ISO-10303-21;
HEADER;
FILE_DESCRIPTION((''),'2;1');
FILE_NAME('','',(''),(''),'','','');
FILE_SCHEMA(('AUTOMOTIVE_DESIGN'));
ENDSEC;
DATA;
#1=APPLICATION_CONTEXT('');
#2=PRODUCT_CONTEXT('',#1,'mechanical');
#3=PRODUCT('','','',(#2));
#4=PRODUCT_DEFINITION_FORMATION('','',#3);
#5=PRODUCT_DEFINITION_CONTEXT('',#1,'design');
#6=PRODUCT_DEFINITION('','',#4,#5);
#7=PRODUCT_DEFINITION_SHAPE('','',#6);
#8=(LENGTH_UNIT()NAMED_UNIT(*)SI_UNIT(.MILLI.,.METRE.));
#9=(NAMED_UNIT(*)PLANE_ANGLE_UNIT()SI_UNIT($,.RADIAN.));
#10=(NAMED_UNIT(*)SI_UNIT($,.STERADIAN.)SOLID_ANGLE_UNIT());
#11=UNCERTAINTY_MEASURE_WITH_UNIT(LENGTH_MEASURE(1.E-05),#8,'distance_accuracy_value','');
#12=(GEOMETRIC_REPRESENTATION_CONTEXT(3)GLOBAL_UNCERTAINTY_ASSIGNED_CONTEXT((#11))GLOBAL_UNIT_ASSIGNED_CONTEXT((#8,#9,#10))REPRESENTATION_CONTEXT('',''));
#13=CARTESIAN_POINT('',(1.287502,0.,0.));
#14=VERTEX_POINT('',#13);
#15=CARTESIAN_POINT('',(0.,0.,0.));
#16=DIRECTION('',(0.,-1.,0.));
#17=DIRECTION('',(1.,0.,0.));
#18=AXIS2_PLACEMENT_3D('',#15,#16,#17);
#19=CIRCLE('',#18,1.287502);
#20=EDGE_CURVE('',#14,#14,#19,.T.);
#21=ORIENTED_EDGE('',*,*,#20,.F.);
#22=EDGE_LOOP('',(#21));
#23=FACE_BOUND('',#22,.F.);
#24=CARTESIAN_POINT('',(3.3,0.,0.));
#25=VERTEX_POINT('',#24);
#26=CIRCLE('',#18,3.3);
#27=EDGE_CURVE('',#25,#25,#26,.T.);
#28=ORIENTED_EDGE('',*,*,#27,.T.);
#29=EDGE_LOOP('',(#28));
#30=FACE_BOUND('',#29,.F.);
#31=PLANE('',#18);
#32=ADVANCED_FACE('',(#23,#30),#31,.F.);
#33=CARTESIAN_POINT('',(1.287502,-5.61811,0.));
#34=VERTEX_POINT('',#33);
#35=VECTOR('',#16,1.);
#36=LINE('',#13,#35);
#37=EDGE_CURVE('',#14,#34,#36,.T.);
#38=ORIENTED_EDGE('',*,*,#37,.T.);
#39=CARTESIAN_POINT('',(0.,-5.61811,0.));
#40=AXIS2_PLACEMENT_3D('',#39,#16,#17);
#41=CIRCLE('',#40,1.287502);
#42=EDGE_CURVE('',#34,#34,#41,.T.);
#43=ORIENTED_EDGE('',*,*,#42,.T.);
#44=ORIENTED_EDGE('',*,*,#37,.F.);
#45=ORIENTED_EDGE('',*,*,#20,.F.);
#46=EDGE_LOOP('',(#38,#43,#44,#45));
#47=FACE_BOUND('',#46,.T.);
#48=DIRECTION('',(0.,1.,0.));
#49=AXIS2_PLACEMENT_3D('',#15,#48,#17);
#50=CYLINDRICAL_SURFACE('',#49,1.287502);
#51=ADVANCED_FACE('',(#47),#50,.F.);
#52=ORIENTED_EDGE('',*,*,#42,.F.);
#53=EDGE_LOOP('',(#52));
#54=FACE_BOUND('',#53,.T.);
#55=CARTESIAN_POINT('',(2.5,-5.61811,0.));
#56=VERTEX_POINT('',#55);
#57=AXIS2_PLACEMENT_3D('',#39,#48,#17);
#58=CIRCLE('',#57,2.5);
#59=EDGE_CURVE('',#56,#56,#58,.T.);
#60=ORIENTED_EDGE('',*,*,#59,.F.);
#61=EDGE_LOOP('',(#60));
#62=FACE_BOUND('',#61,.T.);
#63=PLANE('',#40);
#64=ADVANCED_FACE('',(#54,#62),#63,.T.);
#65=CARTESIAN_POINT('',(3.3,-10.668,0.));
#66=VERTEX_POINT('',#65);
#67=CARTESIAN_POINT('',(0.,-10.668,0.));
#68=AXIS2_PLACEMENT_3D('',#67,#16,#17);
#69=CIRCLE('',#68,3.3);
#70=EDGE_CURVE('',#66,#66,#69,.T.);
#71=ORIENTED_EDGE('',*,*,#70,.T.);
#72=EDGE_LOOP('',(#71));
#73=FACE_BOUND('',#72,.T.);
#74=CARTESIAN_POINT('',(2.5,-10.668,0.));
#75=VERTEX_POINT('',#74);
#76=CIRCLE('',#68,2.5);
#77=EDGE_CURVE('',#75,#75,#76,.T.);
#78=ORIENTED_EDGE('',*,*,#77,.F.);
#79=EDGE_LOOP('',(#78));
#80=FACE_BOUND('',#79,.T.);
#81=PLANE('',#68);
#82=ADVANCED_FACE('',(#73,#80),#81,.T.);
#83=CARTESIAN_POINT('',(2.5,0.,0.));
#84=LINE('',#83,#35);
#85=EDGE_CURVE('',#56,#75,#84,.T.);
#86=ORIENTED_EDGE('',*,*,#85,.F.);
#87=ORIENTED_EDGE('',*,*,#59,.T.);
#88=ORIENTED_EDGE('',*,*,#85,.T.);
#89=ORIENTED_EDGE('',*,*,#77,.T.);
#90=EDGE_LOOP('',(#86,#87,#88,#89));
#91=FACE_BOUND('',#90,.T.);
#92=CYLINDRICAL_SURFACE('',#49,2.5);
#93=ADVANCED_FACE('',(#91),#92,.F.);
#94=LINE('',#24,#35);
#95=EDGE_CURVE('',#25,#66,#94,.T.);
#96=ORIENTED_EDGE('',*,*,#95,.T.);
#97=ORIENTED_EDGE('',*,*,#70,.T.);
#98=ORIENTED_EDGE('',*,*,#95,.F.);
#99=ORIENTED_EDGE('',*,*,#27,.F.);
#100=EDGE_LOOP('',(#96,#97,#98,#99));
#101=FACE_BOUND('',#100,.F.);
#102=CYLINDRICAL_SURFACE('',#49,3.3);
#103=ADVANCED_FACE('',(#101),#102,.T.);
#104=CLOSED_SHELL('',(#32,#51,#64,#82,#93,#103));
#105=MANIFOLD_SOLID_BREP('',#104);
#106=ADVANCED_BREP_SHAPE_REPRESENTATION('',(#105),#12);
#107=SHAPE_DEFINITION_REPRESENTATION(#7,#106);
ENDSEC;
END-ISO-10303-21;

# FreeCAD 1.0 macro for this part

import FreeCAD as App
import Part
import Sketcher
Q = App.Units.Quantity

doc = App.newDocument("Part")
params = doc.addObject("Spreadsheet::Sheet", "Params")
for row, (alias, value) in enumerate([
    ("sketch1_diameter", "5 mm"),
    ("sketch1_diameter2", "6.6 mm"),
    ("pad1_length", "10.668 mm"),
    ("pad2_length", "5.61811 mm"),
], start=1):
    params.set(f"A{row}", alias)
    params.set(f"B{row}", "=" + value)
    params.setAlias(f"B{row}", alias)

body = doc.addObject("PartDesign::Body", "Body")

sketch1 = body.newObject("Sketcher::SketchObject", "Sketch")
sketch1.AttachmentSupport = (doc.getObject("XZ_Plane"), [""])
sketch1.MapMode = "FlatFace"
sketch1.addGeometry([
    Part.Circle(App.Vector(0, 0, 0), App.Vector(0, 0, 1), 3.3),
    Part.Circle(App.Vector(0, 0, 0), App.Vector(0, 0, 1), 2.5),
], False)
sketch1.addConstraint([
    Sketcher.Constraint("Coincident", 0, 3, -1, 1),
    Sketcher.Constraint("Coincident", 1, 3, -1, 1),
    Sketcher.Constraint("Diameter", 1, Q("5 mm")),
    Sketcher.Constraint("Diameter", 0, Q("6.6 mm")),
])
sketch1.setExpression("Constraints[2]", "Params.sketch1_diameter")
sketch1.setExpression("Constraints[3]", "Params.sketch1_diameter2")
pad1 = body.newObject("PartDesign::Pad", "Pad")
pad1.Profile = sketch1
pad1.setExpression("Length", "Params.pad1_length")

sketch2 = body.newObject("Sketcher::SketchObject", "Sketch001")
sketch2.AttachmentSupport = (doc.getObject("XZ_Plane"), [""])
sketch2.MapMode = "FlatFace"
sketch2.addGeometry([
    Part.Circle(App.Vector(0, 0, 0), App.Vector(0, 0, 1), 2.5),
    Part.Circle(App.Vector(0, 0, 0), App.Vector(0, 0, 1), 1.3),
], False)
sketch2.addConstraint([
    Sketcher.Constraint("Coincident", 0, 3, -1, 1),
    Sketcher.Constraint("Coincident", 1, 3, -1, 1),
    Sketcher.Constraint("Diameter", 0, Q("5.033806 mm")),
    Sketcher.Constraint("Diameter", 1, Q("2.575004 mm")),
])
pad2 = body.newObject("PartDesign::Pad", "Pad001")
pad2.Profile = sketch2
pad2.setExpression("Length", "Params.pad2_length")

doc.recompute()
